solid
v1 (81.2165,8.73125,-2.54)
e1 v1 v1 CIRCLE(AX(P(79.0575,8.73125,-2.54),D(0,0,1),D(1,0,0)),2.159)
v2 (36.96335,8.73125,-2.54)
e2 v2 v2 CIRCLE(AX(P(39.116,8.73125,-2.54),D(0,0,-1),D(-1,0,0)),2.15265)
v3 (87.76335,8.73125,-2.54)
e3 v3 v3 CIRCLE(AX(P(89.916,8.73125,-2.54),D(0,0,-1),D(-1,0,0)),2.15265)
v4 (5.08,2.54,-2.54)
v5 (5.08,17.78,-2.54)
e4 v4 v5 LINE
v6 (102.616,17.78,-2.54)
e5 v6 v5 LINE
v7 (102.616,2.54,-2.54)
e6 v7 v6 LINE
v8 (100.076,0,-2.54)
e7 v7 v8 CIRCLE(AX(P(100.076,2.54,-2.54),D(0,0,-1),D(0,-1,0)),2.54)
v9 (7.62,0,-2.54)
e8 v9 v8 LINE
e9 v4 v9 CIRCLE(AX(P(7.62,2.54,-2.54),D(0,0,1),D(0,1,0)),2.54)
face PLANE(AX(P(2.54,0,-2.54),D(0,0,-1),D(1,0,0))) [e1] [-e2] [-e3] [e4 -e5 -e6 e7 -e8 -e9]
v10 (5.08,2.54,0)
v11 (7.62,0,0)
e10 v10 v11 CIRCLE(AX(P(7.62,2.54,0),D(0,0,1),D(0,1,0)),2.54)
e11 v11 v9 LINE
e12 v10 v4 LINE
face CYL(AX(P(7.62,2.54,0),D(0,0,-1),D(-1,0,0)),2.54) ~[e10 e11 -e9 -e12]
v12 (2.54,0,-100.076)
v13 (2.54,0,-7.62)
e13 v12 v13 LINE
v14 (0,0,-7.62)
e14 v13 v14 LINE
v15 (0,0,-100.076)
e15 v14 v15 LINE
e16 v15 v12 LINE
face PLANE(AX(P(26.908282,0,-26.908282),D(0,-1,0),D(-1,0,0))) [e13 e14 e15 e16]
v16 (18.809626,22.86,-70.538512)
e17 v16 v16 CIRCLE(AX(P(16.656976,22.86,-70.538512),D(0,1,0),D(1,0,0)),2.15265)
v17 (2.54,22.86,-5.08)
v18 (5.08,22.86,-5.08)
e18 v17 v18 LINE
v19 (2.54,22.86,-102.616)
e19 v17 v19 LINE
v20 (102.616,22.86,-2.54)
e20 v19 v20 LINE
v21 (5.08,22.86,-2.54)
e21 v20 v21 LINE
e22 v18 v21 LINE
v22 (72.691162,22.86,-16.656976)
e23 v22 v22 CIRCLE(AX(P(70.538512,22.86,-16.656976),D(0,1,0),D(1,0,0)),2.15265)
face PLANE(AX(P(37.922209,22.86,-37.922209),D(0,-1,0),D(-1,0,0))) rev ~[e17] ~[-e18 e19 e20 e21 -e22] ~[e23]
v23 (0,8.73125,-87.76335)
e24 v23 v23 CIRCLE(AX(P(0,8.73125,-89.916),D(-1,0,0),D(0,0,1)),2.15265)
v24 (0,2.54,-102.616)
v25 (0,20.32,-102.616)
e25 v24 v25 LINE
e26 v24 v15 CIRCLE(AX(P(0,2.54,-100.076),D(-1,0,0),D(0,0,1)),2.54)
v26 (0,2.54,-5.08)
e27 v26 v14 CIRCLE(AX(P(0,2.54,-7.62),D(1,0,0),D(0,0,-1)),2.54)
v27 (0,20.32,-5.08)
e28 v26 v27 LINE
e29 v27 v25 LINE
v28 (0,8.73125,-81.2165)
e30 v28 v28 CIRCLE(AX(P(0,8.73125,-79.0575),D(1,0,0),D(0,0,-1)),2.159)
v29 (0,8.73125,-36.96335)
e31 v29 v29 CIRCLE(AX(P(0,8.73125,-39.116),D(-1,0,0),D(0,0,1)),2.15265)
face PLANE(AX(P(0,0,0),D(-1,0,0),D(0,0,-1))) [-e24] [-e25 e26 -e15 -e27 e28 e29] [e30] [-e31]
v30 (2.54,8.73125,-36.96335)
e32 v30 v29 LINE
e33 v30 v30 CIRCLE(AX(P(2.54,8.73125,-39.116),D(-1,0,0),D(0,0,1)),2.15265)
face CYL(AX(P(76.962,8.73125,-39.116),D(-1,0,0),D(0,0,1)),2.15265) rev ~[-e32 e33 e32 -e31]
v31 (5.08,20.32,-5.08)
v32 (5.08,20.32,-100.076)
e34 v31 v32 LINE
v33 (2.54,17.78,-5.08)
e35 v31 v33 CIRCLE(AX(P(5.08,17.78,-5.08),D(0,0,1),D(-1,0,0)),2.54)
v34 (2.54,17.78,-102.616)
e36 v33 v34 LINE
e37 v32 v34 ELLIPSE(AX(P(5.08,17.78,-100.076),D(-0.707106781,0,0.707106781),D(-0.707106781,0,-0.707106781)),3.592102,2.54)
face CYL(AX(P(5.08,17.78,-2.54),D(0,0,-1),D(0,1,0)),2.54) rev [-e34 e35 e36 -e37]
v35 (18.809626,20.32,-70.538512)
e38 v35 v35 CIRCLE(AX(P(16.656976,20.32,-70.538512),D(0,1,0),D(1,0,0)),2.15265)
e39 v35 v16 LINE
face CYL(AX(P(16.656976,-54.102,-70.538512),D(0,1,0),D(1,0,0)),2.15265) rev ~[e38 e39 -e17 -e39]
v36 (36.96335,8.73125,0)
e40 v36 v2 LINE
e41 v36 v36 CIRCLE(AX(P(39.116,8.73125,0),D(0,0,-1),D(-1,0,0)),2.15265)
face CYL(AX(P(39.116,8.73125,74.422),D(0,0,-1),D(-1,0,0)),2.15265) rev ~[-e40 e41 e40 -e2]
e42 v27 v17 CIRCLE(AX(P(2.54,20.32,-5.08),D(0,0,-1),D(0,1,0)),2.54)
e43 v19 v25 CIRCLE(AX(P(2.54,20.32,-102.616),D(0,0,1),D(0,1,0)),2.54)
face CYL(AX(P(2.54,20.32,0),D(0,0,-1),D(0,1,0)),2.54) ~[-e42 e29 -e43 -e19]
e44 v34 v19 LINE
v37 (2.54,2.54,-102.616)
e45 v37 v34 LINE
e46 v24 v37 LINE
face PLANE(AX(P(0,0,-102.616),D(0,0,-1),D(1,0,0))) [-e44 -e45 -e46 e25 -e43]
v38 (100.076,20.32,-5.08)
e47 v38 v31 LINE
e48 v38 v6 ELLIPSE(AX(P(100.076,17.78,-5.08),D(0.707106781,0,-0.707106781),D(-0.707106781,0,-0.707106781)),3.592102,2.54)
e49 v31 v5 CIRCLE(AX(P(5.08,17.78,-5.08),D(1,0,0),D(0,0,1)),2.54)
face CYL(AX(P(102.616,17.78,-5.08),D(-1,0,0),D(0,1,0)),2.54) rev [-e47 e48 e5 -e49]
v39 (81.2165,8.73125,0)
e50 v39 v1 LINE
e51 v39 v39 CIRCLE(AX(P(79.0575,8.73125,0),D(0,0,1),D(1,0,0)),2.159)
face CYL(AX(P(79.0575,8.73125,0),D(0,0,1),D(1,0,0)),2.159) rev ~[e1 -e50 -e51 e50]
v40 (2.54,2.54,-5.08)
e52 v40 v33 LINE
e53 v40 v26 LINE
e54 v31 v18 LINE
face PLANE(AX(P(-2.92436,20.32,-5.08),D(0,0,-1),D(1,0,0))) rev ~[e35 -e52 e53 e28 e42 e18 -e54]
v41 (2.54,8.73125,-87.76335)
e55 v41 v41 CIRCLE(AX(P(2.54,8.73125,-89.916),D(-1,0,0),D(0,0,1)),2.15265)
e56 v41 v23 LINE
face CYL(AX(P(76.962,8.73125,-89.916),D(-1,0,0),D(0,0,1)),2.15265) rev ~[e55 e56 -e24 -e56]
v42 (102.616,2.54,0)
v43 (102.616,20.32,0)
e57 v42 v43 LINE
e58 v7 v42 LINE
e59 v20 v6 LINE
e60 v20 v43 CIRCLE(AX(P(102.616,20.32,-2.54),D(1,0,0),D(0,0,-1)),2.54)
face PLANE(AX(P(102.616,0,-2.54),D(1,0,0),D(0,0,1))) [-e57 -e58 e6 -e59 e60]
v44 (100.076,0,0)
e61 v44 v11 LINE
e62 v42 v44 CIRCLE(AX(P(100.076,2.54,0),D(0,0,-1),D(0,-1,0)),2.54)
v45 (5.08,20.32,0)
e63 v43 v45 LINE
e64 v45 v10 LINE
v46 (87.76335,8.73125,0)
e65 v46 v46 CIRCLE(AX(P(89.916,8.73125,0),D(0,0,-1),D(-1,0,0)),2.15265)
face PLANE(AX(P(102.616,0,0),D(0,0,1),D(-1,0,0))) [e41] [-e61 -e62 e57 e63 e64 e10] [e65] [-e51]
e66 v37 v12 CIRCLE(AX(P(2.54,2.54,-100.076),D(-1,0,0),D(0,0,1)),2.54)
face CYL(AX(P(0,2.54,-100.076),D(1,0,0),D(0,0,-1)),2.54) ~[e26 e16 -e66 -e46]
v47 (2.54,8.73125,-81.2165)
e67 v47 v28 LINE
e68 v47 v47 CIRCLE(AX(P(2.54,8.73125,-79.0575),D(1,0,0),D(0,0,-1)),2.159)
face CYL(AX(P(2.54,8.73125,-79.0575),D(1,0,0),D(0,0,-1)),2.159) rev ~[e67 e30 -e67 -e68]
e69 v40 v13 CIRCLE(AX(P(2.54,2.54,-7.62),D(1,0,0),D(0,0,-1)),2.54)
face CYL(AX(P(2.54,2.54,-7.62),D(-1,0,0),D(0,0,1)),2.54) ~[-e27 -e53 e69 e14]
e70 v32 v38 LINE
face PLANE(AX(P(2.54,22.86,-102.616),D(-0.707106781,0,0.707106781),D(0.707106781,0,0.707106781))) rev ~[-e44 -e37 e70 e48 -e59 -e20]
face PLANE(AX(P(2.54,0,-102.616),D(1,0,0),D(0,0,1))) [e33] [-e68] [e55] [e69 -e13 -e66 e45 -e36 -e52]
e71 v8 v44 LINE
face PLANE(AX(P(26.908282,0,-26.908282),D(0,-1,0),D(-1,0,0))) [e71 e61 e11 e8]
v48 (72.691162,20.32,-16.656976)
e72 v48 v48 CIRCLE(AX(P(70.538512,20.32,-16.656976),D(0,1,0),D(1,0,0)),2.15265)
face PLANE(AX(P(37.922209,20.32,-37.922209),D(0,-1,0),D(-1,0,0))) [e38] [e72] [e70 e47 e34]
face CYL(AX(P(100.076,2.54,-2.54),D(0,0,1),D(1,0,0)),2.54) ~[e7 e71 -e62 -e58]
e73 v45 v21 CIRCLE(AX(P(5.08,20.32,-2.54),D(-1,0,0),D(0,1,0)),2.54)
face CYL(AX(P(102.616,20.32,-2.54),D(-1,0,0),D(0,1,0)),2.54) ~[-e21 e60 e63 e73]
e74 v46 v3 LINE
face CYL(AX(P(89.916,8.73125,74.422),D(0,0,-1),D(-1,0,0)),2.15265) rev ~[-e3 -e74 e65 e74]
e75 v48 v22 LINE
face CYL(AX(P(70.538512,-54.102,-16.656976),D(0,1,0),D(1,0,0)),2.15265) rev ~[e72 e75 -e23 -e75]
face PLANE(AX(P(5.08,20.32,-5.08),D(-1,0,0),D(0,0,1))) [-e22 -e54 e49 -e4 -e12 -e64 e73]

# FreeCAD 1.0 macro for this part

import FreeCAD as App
import Part
import Sketcher

V = App.Vector
Q = App.Units.Quantity


def edges_at(feature, points):
    """Names of the edges that pass closest to the given points."""
    edges = feature.Shape.Edges
    near = lambda p: min(range(len(edges)), key=lambda i: edges[i].distToShape(Part.Vertex(*p))[0])
    return sorted({f"Edge{near(p) + 1}" for p in points})

doc = App.newDocument("Part")
body = doc.addObject("PartDesign::Body", "Body")

# Sketch on XZ plane
sketch1 = body.newObject("Sketcher::SketchObject", "Sketch")
sketch1.AttachmentSupport = (doc.getObject("XZ_Plane"), [""])
sketch1.MapMode = "FlatFace"
sketch1.addGeometry(Part.LineSegment(V(102.6, 0, 0), V(102.6, -2.5, 0)), False)
sketch1.addGeometry(Part.LineSegment(V(102.6, -2.5, 0), V(2.5, -2.5, 0)), False)
sketch1.addGeometry(Part.LineSegment(V(2.5, -2.5, 0), V(2.5, -102.6, 0)), False)
sketch1.addGeometry(Part.LineSegment(V(2.5, -102.6, 0), V(0, -102.6, 0)), False)
sketch1.addGeometry(Part.LineSegment(V(0, -102.6, 0), V(0, 0, 0)), False)
sketch1.addGeometry(Part.LineSegment(V(0, 0, 0), V(102.6, 0, 0)), False)
sketch1.addConstraint(Sketcher.Constraint("Coincident", 0, 2, 1, 1))
sketch1.addConstraint(Sketcher.Constraint("Coincident", 1, 2, 2, 1))
sketch1.addConstraint(Sketcher.Constraint("Coincident", 2, 2, 3, 1))
sketch1.addConstraint(Sketcher.Constraint("Coincident", 3, 2, 4, 1))
sketch1.addConstraint(Sketcher.Constraint("Coincident", 4, 2, 5, 1))
sketch1.addConstraint(Sketcher.Constraint("Coincident", 5, 2, 0, 1))
sketch1.addConstraint(Sketcher.Constraint("Vertical", 0))
sketch1.addConstraint(Sketcher.Constraint("Horizontal", 1))
sketch1.addConstraint(Sketcher.Constraint("Vertical", 2))
sketch1.addConstraint(Sketcher.Constraint("Horizontal", 3))
sketch1.addConstraint(Sketcher.Constraint("Vertical", 4))
sketch1.addConstraint(Sketcher.Constraint("Horizontal", 5))
sketch1.addConstraint(Sketcher.Constraint("Coincident", 4, 2, -1, 1))
sketch1.addConstraint(Sketcher.Constraint("Equal", 3, 0))
sketch1.addConstraint(Sketcher.Constraint("Equal", 1, 2))
sketch1.addConstraint(Sketcher.Constraint("DistanceX", 3, 2, 3, 1, Q("0.1 in")))
sketch1.addConstraint(Sketcher.Constraint("DistanceX", 1, 2, 1, 1, Q("3.94 in")))
pad1 = body.newObject("PartDesign::Pad", "Pad")
pad1.Profile = sketch1
pad1.Length = Q("0.9 in")
pad1.Reversed = True

# Sketch on XZ plane
sketch2 = body.newObject("Sketcher::SketchObject", "Sketch001")
sketch2.AttachmentSupport = (doc.getObject("XZ_Plane"), [""])
sketch2.MapMode = "FlatFace"
sketch2.AttachmentOffset = App.Placement(V(0, 0, -0.9 * 25.4), App.Rotation())
sketch2.addGeometry(Part.LineSegment(V(103, -3, 0), V(3, -103, 0)), False)
sketch2.addGeometry(Part.LineSegment(V(3, -103, 0), V(3, -3, 0)), False)
sketch2.addGeometry(Part.LineSegment(V(3, -3, 0), V(103, -3, 0)), False)
sketch2.addConstraint(Sketcher.Constraint("Coincident", 0, 2, 1, 1))
sketch2.addConstraint(Sketcher.Constraint("Coincident", 1, 2, 2, 1))
sketch2.addConstraint(Sketcher.Constraint("Coincident", 2, 2, 0, 1))
sketch2.addConstraint(Sketcher.Constraint("Vertical", 1))
sketch2.addConstraint(Sketcher.Constraint("Horizontal", 2))
sketch2.addConstraint(Sketcher.Constraint("Equal", 2, 1))
sketch2.addConstraint(Sketcher.Constraint("DistanceX", 2, 1, 2, 2, Q("3.94 in")))
sketch2.addConstraint(Sketcher.Constraint("DistanceX", -1, 1, 0, 2, Q("0.1 in")))
sketch2.addConstraint(Sketcher.Constraint("DistanceY", 1, 2, -1, 1, Q("0.1 in")))
pad2 = body.newObject("PartDesign::Pad", "Pad001")
pad2.Profile = sketch2
pad2.Length = Q("0.1 in")
doc.recompute()

fillet = body.newObject("PartDesign::Fillet", "Fillet")
fillet.Base = (pad2, edges_at(pad2, [
    (0, 22.86, -51.308),
    (51.308, 22.86, 0),
    (2.54, 10.16, -2.54),
    (52.578, 20.32, -2.54),
    (2.54, 20.32, -52.578),
]))
fillet.Radius = Q("0.1 in")

# Sketch on XZ plane
sketch3 = body.newObject("Sketcher::SketchObject", "Sketch002")
sketch3.AttachmentSupport = (doc.getObject("XZ_Plane"), [""])
sketch3.MapMode = "FlatFace"
sketch3.AttachmentOffset = App.Placement(V(0, 0, -0.8 * 25.4), App.Rotation())
sketch3.addGeometry(Part.LineSegment(V(-3, 2, 0), V(-3, -5, 0)), False)
sketch3.addGeometry(Part.LineSegment(V(-3, -5, 0), V(5, -5, 0)), False)
sketch3.addGeometry(Part.LineSegment(V(5, -5, 0), V(5, 2, 0)), False)
sketch3.addGeometry(Part.LineSegment(V(5, 2, 0), V(-3, 2, 0)), False)
sketch3.addConstraint(Sketcher.Constraint("Coincident", 0, 2, 1, 1))
sketch3.addConstraint(Sketcher.Constraint("Coincident", 1, 2, 2, 1))
sketch3.addConstraint(Sketcher.Constraint("Coincident", 2, 2, 3, 1))
sketch3.addConstraint(Sketcher.Constraint("Coincident", 3, 2, 0, 1))
sketch3.addConstraint(Sketcher.Constraint("Vertical", 0))
sketch3.addConstraint(Sketcher.Constraint("Horizontal", 1))
sketch3.addConstraint(Sketcher.Constraint("Vertical", 2))
sketch3.addConstraint(Sketcher.Constraint("Horizontal", 3))
sketch3.addConstraint(Sketcher.Constraint("DistanceY", 0, 2, -1, 1, Q("0.2 in")))
sketch3.addConstraint(Sketcher.Constraint("DistanceX", -1, 1, 1, 2, Q("0.2 in")))
sketch3.addConstraint(Sketcher.Constraint("DistanceX", 1, 1, 1, 2, 8.00436))
sketch3.addConstraint(Sketcher.Constraint("DistanceY", 0, 2, 0, 1, 7.259841))
pocket1 = body.newObject("PartDesign::Pocket", "Pocket")
pocket1.Profile = sketch3
pocket1.Type = "ThroughAll"
pocket1.Midplane = True

# Sketch on YZ plane
sketch4 = body.newObject("Sketcher::SketchObject", "Sketch003")
sketch4.AttachmentSupport = (doc.getObject("YZ_Plane"), [""])
sketch4.MapMode = "FlatFace"
sketch4.AttachmentOffset = App.Placement(V(0, 0, 0.1 * 25.4), App.Rotation())
sketch4.addGeometry(Part.Circle(V(8.7, -39.1, 0), V(0, 0, 1), 2.2), False)
sketch4.addGeometry(Part.Circle(V(8.7, -89.9, 0), V(0, 0, 1), 2.2), False)
sketch4.addConstraint(Sketcher.Constraint("Equal", 0, 1))
sketch4.addConstraint(Sketcher.Constraint("Vertical", 0, 3, 1, 3))
sketch4.addConstraint(Sketcher.Constraint("DistanceY", 1, 3, 0, 3, Q("2 in")))
sketch4.addConstraint(Sketcher.Constraint("Diameter", 0, Q("0.1695 in")))
sketch4.addConstraint(Sketcher.Constraint("DistanceY", 0, 3, -1, 1, Q("1.54 in")))
sketch4.addConstraint(Sketcher.Constraint("DistanceX", -1, 1, 0, 3, Q("0.34375 in")))
doc.recompute()
hole = body.newObject("PartDesign::Hole", "Hole")
hole.Profile = sketch4
hole.ThreadType = "None"
hole.Diameter = Q("0.1695 in")
hole.DepthType = "Dimension"
hole.Depth = Q("2.93 in")
hole.DrillPoint = "Angled"
hole.DrillPointAngle = 118

# Sketch on XY plane
sketch5 = body.newObject("Sketcher::SketchObject", "Sketch004")
sketch5.AttachmentSupport = (doc.getObject("XY_Plane"), [""])
sketch5.MapMode = "FlatFace"
sketch5.addGeometry(Part.Circle(V(89.9, 8.7, 0), V(0, 0, 1), 2.2), False)
sketch5.addGeometry(Part.Circle(V(39.1, 8.7, 0), V(0, 0, 1), 2.2), False)
sketch5.addConstraint(Sketcher.Constraint("Equal", 0, 1))
sketch5.addConstraint(Sketcher.Constraint("Horizontal", 0, 3, 1, 3))
sketch5.addConstraint(Sketcher.Constraint("DistanceX", 1, 3, 0, 3, Q("2 in")))
sketch5.addConstraint(Sketcher.Constraint("Diameter", 0, Q("0.1695 in")))
sketch5.addConstraint(Sketcher.Constraint("DistanceX", -1, 1, 0, 3, Q("3.54 in")))
sketch5.addConstraint(Sketcher.Constraint("DistanceY", -1, 1, 0, 3, Q("0.34375 in")))
doc.recompute()
hole2 = body.newObject("PartDesign::Hole", "Hole001")
hole2.Profile = sketch5
hole2.ThreadType = "None"
hole2.Diameter = Q("0.1695 in")
hole2.DepthType = "Dimension"
hole2.Depth = Q("2.93 in")
hole2.DrillPoint = "Angled"
hole2.DrillPointAngle = 118

# Sketch on XZ plane
sketch6 = body.newObject("Sketcher::SketchObject", "Sketch005")
sketch6.AttachmentSupport = (doc.getObject("XZ_Plane"), [""])
sketch6.MapMode = "FlatFace"
sketch6.AttachmentOffset = App.Placement(V(0, 0, -0.8 * 25.4), App.Rotation())
sketch6.addGeometry(Part.Circle(V(16.7, -70.5, 0), V(0, 0, 1), 2.2), False)
sketch6.addGeometry(Part.Circle(V(70.5, -16.7, 0), V(0, 0, 1), 2.2), False)
sketch6.addConstraint(Sketcher.Constraint("Equal", 0, 1))
sketch6.addConstraint(Sketcher.Constraint("Diameter", 0, Q("0.1695 in")))
sketch6.addConstraint(Sketcher.Constraint("DistanceX", -1, 1, 0, 3, 16.656976))
sketch6.addConstraint(Sketcher.Constraint("DistanceY", 0, 3, -1, 1, 70.538512))
sketch6.addConstraint(Sketcher.Constraint("DistanceX", -1, 1, 1, 3, 70.538512))
sketch6.addConstraint(Sketcher.Constraint("DistanceY", 1, 3, -1, 1, 16.656976))
doc.recompute()
hole3 = body.newObject("PartDesign::Hole", "Hole002")
hole3.Profile = sketch6
hole3.ThreadType = "None"
hole3.Diameter = Q("0.1695 in")
hole3.DepthType = "Dimension"
hole3.Depth = Q("2.93 in")
hole3.DrillPoint = "Angled"
hole3.DrillPointAngle = 118
doc.recompute()

fillet2 = body.newObject("PartDesign::Fillet", "Fillet001")
fillet2.Base = (hole3, edges_at(hole3, [
    (1.27, 0, -5.08),
    (5.08, 0, -1.27),
    (1.27, 0, -102.616),
    (102.616, 0, -1.27),
]))
fillet2.Radius = Q("0.1 in")

# Sketch on YZ plane
sketch7 = body.newObject("Sketcher::SketchObject", "Sketch006")
sketch7.AttachmentSupport = (doc.getObject("YZ_Plane"), [""])
sketch7.MapMode = "FlatFace"
sketch7.AttachmentOffset = App.Placement(V(0, 0, 0.1 * 25.4), App.Rotation())
sketch7.addGeometry(Part.Circle(V(8.7, -79.1, 0), V(0, 0, 1), 2.2), False)
sketch7.addConstraint(Sketcher.Constraint("Diameter", 0, Q("0.17 in")))
sketch7.addConstraint(Sketcher.Constraint("DistanceX", -1, 1, 0, 3, Q("0.34375 in")))
sketch7.addConstraint(Sketcher.Constraint("DistanceY", 0, 3, -1, 1, Q("3.1125 in")))
pocket2 = body.newObject("PartDesign::Pocket", "Pocket001")
pocket2.Profile = sketch7
pocket2.Length = Q("0.3 in")

# Sketch on XY plane
sketch8 = body.newObject("Sketcher::SketchObject", "Sketch007")
sketch8.AttachmentSupport = (doc.getObject("XY_Plane"), [""])
sketch8.MapMode = "FlatFace"
sketch8.addGeometry(Part.Circle(V(79.1, 8.7, 0), V(0, 0, 1), 2.2), False)
sketch8.addConstraint(Sketcher.Constraint("Diameter", 0, Q("0.17 in")))
sketch8.addConstraint(Sketcher.Constraint("DistanceY", -1, 1, 0, 3, Q("0.34375 in")))
sketch8.addConstraint(Sketcher.Constraint("DistanceX", -1, 1, 0, 3, Q("3.1125 in")))
pocket3 = body.newObject("PartDesign::Pocket", "Pocket002")
pocket3.Profile = sketch8
pocket3.Length = Q("0.3 in")

doc.recompute()
